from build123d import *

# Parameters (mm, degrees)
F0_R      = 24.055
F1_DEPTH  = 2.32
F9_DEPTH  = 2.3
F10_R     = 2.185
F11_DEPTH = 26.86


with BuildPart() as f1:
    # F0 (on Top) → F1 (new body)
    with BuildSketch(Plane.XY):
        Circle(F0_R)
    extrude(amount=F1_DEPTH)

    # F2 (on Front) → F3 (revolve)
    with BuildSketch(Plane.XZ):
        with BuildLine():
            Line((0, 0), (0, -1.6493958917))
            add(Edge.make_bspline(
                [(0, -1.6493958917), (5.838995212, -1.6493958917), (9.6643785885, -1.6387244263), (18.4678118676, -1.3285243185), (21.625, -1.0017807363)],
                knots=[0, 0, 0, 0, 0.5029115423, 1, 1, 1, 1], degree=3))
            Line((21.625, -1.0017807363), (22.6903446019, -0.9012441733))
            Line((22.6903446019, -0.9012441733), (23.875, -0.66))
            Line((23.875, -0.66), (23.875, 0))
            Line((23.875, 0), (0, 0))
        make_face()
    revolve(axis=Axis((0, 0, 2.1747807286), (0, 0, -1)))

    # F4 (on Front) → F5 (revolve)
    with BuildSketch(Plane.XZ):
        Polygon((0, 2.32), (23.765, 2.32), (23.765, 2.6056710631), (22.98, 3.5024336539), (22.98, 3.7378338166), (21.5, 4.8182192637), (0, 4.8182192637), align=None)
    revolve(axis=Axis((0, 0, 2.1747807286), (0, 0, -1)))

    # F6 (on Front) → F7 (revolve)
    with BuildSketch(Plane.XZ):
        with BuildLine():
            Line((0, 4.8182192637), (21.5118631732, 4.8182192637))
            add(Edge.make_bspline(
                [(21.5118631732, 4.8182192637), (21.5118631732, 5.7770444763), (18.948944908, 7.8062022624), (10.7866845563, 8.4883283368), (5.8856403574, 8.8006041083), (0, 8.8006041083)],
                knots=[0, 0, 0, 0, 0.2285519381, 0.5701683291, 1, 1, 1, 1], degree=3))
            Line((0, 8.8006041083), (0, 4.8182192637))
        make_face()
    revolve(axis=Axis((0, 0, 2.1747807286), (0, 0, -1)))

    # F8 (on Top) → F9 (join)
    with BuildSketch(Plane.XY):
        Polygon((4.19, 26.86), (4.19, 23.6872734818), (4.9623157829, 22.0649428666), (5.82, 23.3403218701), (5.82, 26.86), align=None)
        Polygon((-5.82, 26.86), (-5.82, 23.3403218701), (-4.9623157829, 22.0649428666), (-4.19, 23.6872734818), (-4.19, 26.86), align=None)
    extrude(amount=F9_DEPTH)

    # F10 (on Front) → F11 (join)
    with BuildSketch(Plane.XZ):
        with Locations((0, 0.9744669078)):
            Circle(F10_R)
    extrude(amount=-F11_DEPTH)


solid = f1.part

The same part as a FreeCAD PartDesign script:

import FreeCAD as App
import Part
import Sketcher

doc = App.newDocument("Part")
body = doc.addObject("PartDesign::Body", "Body")

sketch1 = body.newObject("Sketcher::SketchObject", "Sketch")
sketch1.AttachmentSupport = (doc.getObject("XY_Plane"), [""])
sketch1.MapMode = "FlatFace"
sketch1.addGeometry(Part.Circle(App.Vector(0, 0, 0), App.Vector(0, 0, 1), 24), False)
sketch1.addConstraint([
    Sketcher.Constraint("Coincident", 0, 3, -1, 1),
    Sketcher.Constraint("Diameter", 0, 48.11),
])
pad1 = body.newObject("PartDesign::Pad", "Pad")
pad1.Profile = sketch1
pad1.Length = 2.32

sketch2 = body.newObject("Sketcher::SketchObject", "Sketch001")
sketch2.AttachmentSupport = (doc.getObject("XZ_Plane"), [""])
sketch2.MapMode = "FlatFace"
sketch2.addGeometry([
    Part.LineSegment(App.Vector(0, 0, 0), App.Vector(0, -1.649396, 0)),
    Part.BSplineCurve([App.Vector(0, -1.649396, 0), App.Vector(5.838995, -1.649396, 0), App.Vector(9.664379, -1.638724, 0), App.Vector(18.467812, -1.328524, 0), App.Vector(21.625, -1.001781, 0)], [4, 1, 4], [0, 0.502911542, 1], False, 3, [1, 1, 1, 1, 1], False),
    Part.LineSegment(App.Vector(21.625, -1.001781, 0), App.Vector(22.690345, -0.901244, 0)),
    Part.LineSegment(App.Vector(22.690345, -0.901244, 0), App.Vector(23.875, -0.66, 0)),
    Part.LineSegment(App.Vector(23.875, -0.66, 0), App.Vector(23.875, 0, 0)),
    Part.LineSegment(App.Vector(23.875, 0, 0), App.Vector(0, 0, 0)),
], False)
sketch2.addConstraint([
    Sketcher.Constraint("Block", 1),
    Sketcher.Constraint("Coincident", 0, 2, 1, 1),
    Sketcher.Constraint("Coincident", 1, 2, 2, 1),
    Sketcher.Constraint("Coincident", 2, 2, 3, 1),
    Sketcher.Constraint("Coincident", 3, 2, 4, 1),
    Sketcher.Constraint("Coincident", 4, 2, 5, 1),
    Sketcher.Constraint("Coincident", 5, 2, 0, 1),
    Sketcher.Constraint("Vertical", 0),
    Sketcher.Constraint("Vertical", 4),
    Sketcher.Constraint("Horizontal", 5),
    Sketcher.Constraint("PointOnObject", 4, 2, -1),
    Sketcher.Constraint("DistanceY", 4, 1, 4, 2, 0.66),
    Sketcher.Constraint("DistanceX", 5, 2, 5, 1, 23.875),
    Sketcher.Constraint("Distance", 3, 1.208969),
    Sketcher.Constraint("DistanceY", 0, 2, 2, 2, 0.748152),
])
revolution = body.newObject("PartDesign::Revolution", "Revolution")
revolution.Profile = sketch2
revolution.ReferenceAxis = (sketch2, ["V_Axis"])
revolution.Angle = 360

sketch3 = body.newObject("Sketcher::SketchObject", "Sketch002")
sketch3.AttachmentSupport = (doc.getObject("XZ_Plane"), [""])
sketch3.MapMode = "FlatFace"
sketch3.addGeometry([
    Part.LineSegment(App.Vector(0, 2.32, 0), App.Vector(23.77, 2.32, 0)),
    Part.LineSegment(App.Vector(23.77, 2.32, 0), App.Vector(23.77, 2.61, 0)),
    Part.LineSegment(App.Vector(23.77, 2.61, 0), App.Vector(22.98, 3.5, 0)),
    Part.LineSegment(App.Vector(22.98, 3.5, 0), App.Vector(22.98, 3.74, 0)),
    Part.LineSegment(App.Vector(22.98, 3.74, 0), App.Vector(21.5, 4.82, 0)),
    Part.LineSegment(App.Vector(21.5, 4.82, 0), App.Vector(0, 4.82, 0)),
    Part.LineSegment(App.Vector(0, 4.82, 0), App.Vector(0, 2.32, 0)),
], False)
sketch3.addConstraint([
    Sketcher.Constraint("Coincident", 0, 2, 1, 1),
    Sketcher.Constraint("Coincident", 1, 2, 2, 1),
    Sketcher.Constraint("Coincident", 2, 2, 3, 1),
    Sketcher.Constraint("Coincident", 3, 2, 4, 1),
    Sketcher.Constraint("Coincident", 4, 2, 5, 1),
    Sketcher.Constraint("Coincident", 5, 2, 6, 1),
    Sketcher.Constraint("Coincident", 6, 2, 0, 1),
    Sketcher.Constraint("Horizontal", 0),
    Sketcher.Constraint("Vertical", 1),
    Sketcher.Constraint("Vertical", 3),
    Sketcher.Constraint("Horizontal", 5),
    Sketcher.Constraint("Vertical", 6),
    Sketcher.Constraint("PointOnObject", 5, 2, -2),
    Sketcher.Constraint("DistanceX", 5, 2, 5, 1, 21.5),
    Sketcher.Constraint("DistanceX", 0, 1, 0, 2, 23.765),
    Sketcher.Constraint("DistanceY", -1, 1, 0, 2, 2.32),
    Sketcher.Constraint("DistanceX", -1, 1, 2, 2, 22.98),
    Sketcher.Constraint("DistanceY", 3, 1, 3, 2, 0.2354),
    Sketcher.Constraint("DistanceY", 1, 1, 1, 2, 0.285671),
    Sketcher.Constraint("DistanceY", 6, 2, 6, 1, 2.498219),
    Sketcher.Constraint("Distance", 2, 1.191809),
])
revolution2 = body.newObject("PartDesign::Revolution", "Revolution001")
revolution2.Profile = sketch3
revolution2.ReferenceAxis = (sketch3, ["V_Axis"])
revolution2.Angle = 360

sketch4 = body.newObject("Sketcher::SketchObject", "Sketch003")
sketch4.AttachmentSupport = (doc.getObject("XZ_Plane"), [""])
sketch4.MapMode = "FlatFace"
sketch4.addGeometry([
    Part.LineSegment(App.Vector(0, 4.818219, 0), App.Vector(21.511863, 4.818219, 0)),
    Part.BSplineCurve([App.Vector(21.511863, 4.818219, 0), App.Vector(21.511863, 5.777044, 0), App.Vector(18.948945, 7.806202, 0), App.Vector(10.786685, 8.488328, 0), App.Vector(5.88564, 8.800604, 0), App.Vector(0, 8.800604, 0)], [4, 1, 1, 4], [0, 0.228551938, 0.570168329, 1], False, 3, [1, 1, 1, 1, 1, 1], False),
    Part.LineSegment(App.Vector(0, 8.800604, 0), App.Vector(0, 4.818219, 0)),
], False)
sketch4.addConstraint([
    Sketcher.Constraint("Block", 1),
    Sketcher.Constraint("Coincident", 0, 2, 1, 1),
    Sketcher.Constraint("Coincident", 1, 2, 2, 1),
    Sketcher.Constraint("Coincident", 2, 2, 0, 1),
    Sketcher.Constraint("Horizontal", 0),
    Sketcher.Constraint("Vertical", 2),
])
revolution3 = body.newObject("PartDesign::Revolution", "Revolution002")
revolution3.Profile = sketch4
revolution3.ReferenceAxis = (sketch4, ["V_Axis"])
revolution3.Angle = 360

sketch5 = body.newObject("Sketcher::SketchObject", "Sketch004")
sketch5.AttachmentSupport = (doc.getObject("XY_Plane"), [""])
sketch5.MapMode = "FlatFace"
sketch5.addGeometry([
    Part.LineSegment(App.Vector(4.2, 26.9, 0), App.Vector(4.2, 23.7, 0)),
    Part.LineSegment(App.Vector(4.2, 23.7, 0), App.Vector(5, 22.1, 0)),
    Part.LineSegment(App.Vector(5, 22.1, 0), App.Vector(5.8, 23.3, 0)),
    Part.LineSegment(App.Vector(5.8, 23.3, 0), App.Vector(5.8, 26.9, 0)),
    Part.LineSegment(App.Vector(5.8, 26.9, 0), App.Vector(4.2, 26.9, 0)),
    Part.LineSegment(App.Vector(-5.8, 26.9, 0), App.Vector(-5.8, 23.3, 0)),
    Part.LineSegment(App.Vector(-5.8, 23.3, 0), App.Vector(-5, 22.1, 0)),
    Part.LineSegment(App.Vector(-5, 22.1, 0), App.Vector(-4.2, 23.7, 0)),
    Part.LineSegment(App.Vector(-4.2, 23.7, 0), App.Vector(-4.2, 26.9, 0)),
    Part.LineSegment(App.Vector(-4.2, 26.9, 0), App.Vector(-5.8, 26.9, 0)),
], False)
sketch5.addConstraint([
    Sketcher.Constraint("Coincident", 0, 2, 1, 1),
    Sketcher.Constraint("Coincident", 1, 2, 2, 1),
    Sketcher.Constraint("Coincident", 2, 2, 3, 1),
    Sketcher.Constraint("Coincident", 3, 2, 4, 1),
    Sketcher.Constraint("Coincident", 4, 2, 0, 1),
    Sketcher.Constraint("Coincident", 5, 2, 6, 1),
    Sketcher.Constraint("Coincident", 6, 2, 7, 1),
    Sketcher.Constraint("Coincident", 7, 2, 8, 1),
    Sketcher.Constraint("Coincident", 8, 2, 9, 1),
    Sketcher.Constraint("Coincident", 9, 2, 5, 1),
    Sketcher.Constraint("Vertical", 0),
    Sketcher.Constraint("Vertical", 3),
    Sketcher.Constraint("Horizontal", 4),
    Sketcher.Constraint("Vertical", 5),
    Sketcher.Constraint("Vertical", 8),
    Sketcher.Constraint("Horizontal", 9),
    Sketcher.Constraint("Symmetric", 2, 2, 5, 2, -2),
    Sketcher.Constraint("Symmetric", 1, 2, 6, 2, -2),
    Sketcher.Constraint("Symmetric", 0, 2, 7, 2, -2),
    Sketcher.Constraint("Horizontal", 4, 2, 8, 2),
    Sketcher.Constraint("DistanceX", 4, 2, 4, 1, 1.63),
    Sketcher.Constraint("DistanceX", -1, 1, 0, 2, 4.19),
    Sketcher.Constraint("DistanceY", -1, 1, 3, 2, 26.86),
    Sketcher.Constraint("DistanceY", 3, 1, 3, 2, 3.519678),
    Sketcher.Constraint("Distance", 2, 1.53695),
    Sketcher.Constraint("DistanceY", 0, 2, 0, 1, 3.172727),
    Sketcher.Constraint("DistanceY", 1, 2, 0, 2, 1.622331),
])
pad2 = body.newObject("PartDesign::Pad", "Pad001")
pad2.Profile = sketch5
pad2.Length = 2.3

sketch6 = body.newObject("Sketcher::SketchObject", "Sketch005")
sketch6.AttachmentSupport = (doc.getObject("XZ_Plane"), [""])
sketch6.MapMode = "FlatFace"
sketch6.addGeometry(Part.Circle(App.Vector(0, 1, 0), App.Vector(0, 0, 1), 2.2), False)
sketch6.addConstraint([
    Sketcher.Constraint("PointOnObject", 0, 3, -2),
    Sketcher.Constraint("Diameter", 0, 4.37),
    Sketcher.Constraint("DistanceY", -1, 1, 0, 3, 0.974467),
])
pad3 = body.newObject("PartDesign::Pad", "Pad002")
pad3.Profile = sketch6
pad3.Length = 26.86
pad3.Reversed = True

doc.recompute()
